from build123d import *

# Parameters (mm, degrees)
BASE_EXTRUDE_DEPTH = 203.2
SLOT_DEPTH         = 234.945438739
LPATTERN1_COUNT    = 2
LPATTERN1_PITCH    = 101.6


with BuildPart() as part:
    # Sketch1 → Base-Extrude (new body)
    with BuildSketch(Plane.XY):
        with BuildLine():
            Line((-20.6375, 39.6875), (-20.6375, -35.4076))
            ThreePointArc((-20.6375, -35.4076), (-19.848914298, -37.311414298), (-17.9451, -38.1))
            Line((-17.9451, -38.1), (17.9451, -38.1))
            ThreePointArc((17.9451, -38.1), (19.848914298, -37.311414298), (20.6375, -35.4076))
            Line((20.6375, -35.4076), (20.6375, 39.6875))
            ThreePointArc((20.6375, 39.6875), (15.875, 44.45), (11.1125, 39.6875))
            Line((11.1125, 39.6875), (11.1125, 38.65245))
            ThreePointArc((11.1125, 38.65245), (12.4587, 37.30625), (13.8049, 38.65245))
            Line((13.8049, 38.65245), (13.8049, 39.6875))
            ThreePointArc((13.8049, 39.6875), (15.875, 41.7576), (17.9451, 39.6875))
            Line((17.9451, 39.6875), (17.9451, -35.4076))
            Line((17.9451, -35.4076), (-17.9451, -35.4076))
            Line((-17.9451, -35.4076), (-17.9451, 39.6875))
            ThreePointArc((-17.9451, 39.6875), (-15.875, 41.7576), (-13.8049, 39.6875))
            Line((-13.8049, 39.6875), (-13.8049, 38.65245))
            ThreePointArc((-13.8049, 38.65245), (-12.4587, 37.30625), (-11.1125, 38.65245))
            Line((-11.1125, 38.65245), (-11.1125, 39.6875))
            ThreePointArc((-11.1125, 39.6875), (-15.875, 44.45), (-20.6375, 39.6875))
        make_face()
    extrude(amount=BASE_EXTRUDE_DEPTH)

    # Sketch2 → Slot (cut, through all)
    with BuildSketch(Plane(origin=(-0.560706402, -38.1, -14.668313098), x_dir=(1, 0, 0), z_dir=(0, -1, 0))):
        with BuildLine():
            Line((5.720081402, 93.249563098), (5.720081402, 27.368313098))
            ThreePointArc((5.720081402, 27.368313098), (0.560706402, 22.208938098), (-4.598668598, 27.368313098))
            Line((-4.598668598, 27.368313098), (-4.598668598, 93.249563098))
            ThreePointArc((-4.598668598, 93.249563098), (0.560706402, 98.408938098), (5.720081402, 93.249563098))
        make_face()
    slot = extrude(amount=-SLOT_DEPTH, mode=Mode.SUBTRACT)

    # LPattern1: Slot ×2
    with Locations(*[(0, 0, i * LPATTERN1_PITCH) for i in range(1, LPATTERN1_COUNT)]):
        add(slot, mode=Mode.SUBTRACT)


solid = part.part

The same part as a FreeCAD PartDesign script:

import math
import FreeCAD as App
import Part
import Sketcher
from FreeCAD import Vector
Q = App.Units.Quantity

doc = App.newDocument("Part")
body = doc.addObject("PartDesign::Body", "Body")

# Sketch on XY plane
sketch1 = doc.addObject("Sketcher::SketchObject", "Sketch")
body.addObject(sketch1)
sketch1.AttachmentSupport = (doc.XY_Plane, [""])
sketch1.MapMode = "FlatFace"
sketch1.addGeometry([
    Part.LineSegment(Vector(-20.6, 39.7, 0), Vector(-20.6, -35.4, 0)),  # 0
    Part.ArcOfCircle(Part.Circle(Vector(-17.9, -35.4, 0), Vector(0, 0, 1), 2.7), math.radians(180), math.radians(270)),  # 1
    Part.LineSegment(Vector(-17.9, -38.1, 0), Vector(17.9, -38.1, 0)),  # 2
    Part.ArcOfCircle(Part.Circle(Vector(17.9, -35.4, 0), Vector(0, 0, 1), 2.7), math.radians(-90), math.radians(0)),  # 3
    Part.LineSegment(Vector(20.6, -35.4, 0), Vector(20.6, 39.7, 0)),  # 4
    Part.ArcOfCircle(Part.Circle(Vector(15.9, 39.7, 0), Vector(0, 0, 1), 4.8), math.radians(0), math.radians(180)),  # 5
    Part.LineSegment(Vector(11.1, 39.7, 0), Vector(11.1, 38.7, 0)),  # 6
    Part.ArcOfCircle(Part.Circle(Vector(12.5, 38.7, 0), Vector(0, 0, 1), 1.3), math.radians(180), math.radians(360)),  # 7
    Part.LineSegment(Vector(13.8, 38.7, 0), Vector(13.8, 39.7, 0)),  # 8
    Part.ArcOfCircle(Part.Circle(Vector(15.9, 39.7, 0), Vector(0, 0, 1), 2.1), math.radians(0), math.radians(180)),  # 9
    Part.LineSegment(Vector(17.9, 39.7, 0), Vector(17.9, -35.4, 0)),  # 10
    Part.LineSegment(Vector(17.9, -35.4, 0), Vector(-17.9, -35.4, 0)),  # 11
    Part.LineSegment(Vector(-17.9, -35.4, 0), Vector(-17.9, 39.7, 0)),  # 12
    Part.ArcOfCircle(Part.Circle(Vector(-15.9, 39.7, 0), Vector(0, 0, 1), 2.1), math.radians(0), math.radians(180)),  # 13
    Part.LineSegment(Vector(-13.8, 39.7, 0), Vector(-13.8, 38.7, 0)),  # 14
    Part.ArcOfCircle(Part.Circle(Vector(-12.5, 38.7, 0), Vector(0, 0, 1), 1.3), math.radians(180), math.radians(360)),  # 15
    Part.LineSegment(Vector(-11.1, 38.7, 0), Vector(-11.1, 39.7, 0)),  # 16
    Part.ArcOfCircle(Part.Circle(Vector(-15.9, 39.7, 0), Vector(0, 0, 1), 4.8), math.radians(0), math.radians(180)),  # 17
], False)
sketch1.addConstraint([
    Sketcher.Constraint("Tangent", 0, 2, 1, 1),
    Sketcher.Constraint("Tangent", 1, 2, 2, 1),
    Sketcher.Constraint("Tangent", 2, 2, 3, 1),
    Sketcher.Constraint("Tangent", 3, 2, 4, 1),
    Sketcher.Constraint("Tangent", 4, 2, 5, 1),
    Sketcher.Constraint("Tangent", 5, 2, 6, 1),
    Sketcher.Constraint("Tangent", 6, 2, 7, 1),
    Sketcher.Constraint("Tangent", 7, 2, 8, 1),
    Sketcher.Constraint("Tangent", 8, 2, 9, 2),
    Sketcher.Constraint("Tangent", 9, 1, 10, 1),
    Sketcher.Constraint("Coincident", 10, 2, 11, 1),
    Sketcher.Constraint("Coincident", 11, 2, 12, 1),
    Sketcher.Constraint("Tangent", 12, 2, 13, 2),
    Sketcher.Constraint("Tangent", 13, 1, 14, 1),
    Sketcher.Constraint("Tangent", 14, 2, 15, 1),
    Sketcher.Constraint("Tangent", 15, 2, 16, 1),
    Sketcher.Constraint("Tangent", 16, 2, 17, 1),
    Sketcher.Constraint("Tangent", 17, 2, 0, 1),
    Sketcher.Constraint("Vertical", 0),
    Sketcher.Constraint("Horizontal", 2),
    Sketcher.Constraint("Vertical", 4),
    Sketcher.Constraint("Vertical", 6),
    Sketcher.Constraint("Vertical", 8),
    Sketcher.Constraint("Vertical", 10),
    Sketcher.Constraint("Horizontal", 11),
    Sketcher.Constraint("Vertical", 12),
    Sketcher.Constraint("Vertical", 14),
    Sketcher.Constraint("Vertical", 16),
    Sketcher.Constraint("Coincident", 9, 3, 5, 3),
    Sketcher.Constraint("Coincident", 17, 3, 13, 3),
    Sketcher.Constraint("Coincident", 10, 2, 3, 3),
    Sketcher.Constraint("Coincident", 11, 2, 1, 3),
    Sketcher.Constraint("Equal", 9, 13),
    Sketcher.Constraint("Symmetric", 5, 3, 13, 3, -2),
    Sketcher.Constraint("Horizontal", 7, 3, 15, 3),
    Sketcher.Constraint("Radius", 1, Q("0.106 in")),
    Sketcher.Constraint("Radius", 5, Q("0.1875 in")),
    Sketcher.Constraint("DistanceY", 1, 2, -1, 1, Q("1.5 in")),
    Sketcher.Constraint("DistanceX", 2, 1, 2, 2, Q("1.413 in")),
    Sketcher.Constraint("DistanceY", 0, 2, 0, 1, Q("2.9565 in")),
    Sketcher.Constraint("DistanceY", 6, 2, 6, 1, 1.03505),
])
pad1 = doc.addObject("PartDesign::Pad", "Pad")
body.addObject(pad1)
pad1.Profile = sketch1
pad1.Length = Q("8 in")

# Sketch on XZ plane
sketch2 = doc.addObject("Sketcher::SketchObject", "Sketch001")
body.addObject(sketch2)
sketch2.AttachmentSupport = (doc.XZ_Plane, [""])
sketch2.MapMode = "FlatFace"
sketch2.AttachmentOffset = App.Placement(Vector(0, 0, 1.5 * 25.4), App.Rotation())
sketch2.addGeometry([
    Part.LineSegment(Vector(5, 13, 0), Vector(5, 79, 0)),
    Part.ArcOfCircle(Part.Circle(Vector(0, 79, 0), Vector(0, 0, 1), 5), math.radians(0), math.radians(180)),
    Part.LineSegment(Vector(-5, 79, 0), Vector(-5, 13, 0)),
    Part.ArcOfCircle(Part.Circle(Vector(0, 13, 0), Vector(0, 0, 1), 5), math.radians(180), math.radians(360)),
], False)
sketch2.addConstraint([
    Sketcher.Constraint("Tangent", 0, 2, 1, 1),
    Sketcher.Constraint("Tangent", 1, 2, 2, 1),
    Sketcher.Constraint("Tangent", 2, 2, 3, 1),
    Sketcher.Constraint("Tangent", 3, 2, 0, 1),
    Sketcher.Constraint("Vertical", 0),
    Sketcher.Constraint("Vertical", 2),
    Sketcher.Constraint("PointOnObject", 1, 3, -2),
    Sketcher.Constraint("Radius", 1, Q("0.203125 in")),
    Sketcher.Constraint("DistanceY", -1, 1, 3, 3, Q("0.5 in")),
    Sketcher.Constraint("DistanceY", 0, 1, 0, 2, Q("2.59375 in")),
])
pocket1 = doc.addObject("PartDesign::Pocket", "Pocket")
body.addObject(pocket1)
pocket1.Profile = sketch2
pocket1.Type = "ThroughAll"
doc.recompute()

linearpattern = doc.addObject("PartDesign::LinearPattern", "LinearPattern")
body.addObject(linearpattern)
linearpattern.Originals = [pocket1]
linearpattern.Direction = (doc.Z_Axis, [""])
linearpattern.Mode = "offset"
linearpattern.Offset = Q("4 in")
linearpattern.Occurrences = 2
body.Tip = linearpattern

doc.recompute()
